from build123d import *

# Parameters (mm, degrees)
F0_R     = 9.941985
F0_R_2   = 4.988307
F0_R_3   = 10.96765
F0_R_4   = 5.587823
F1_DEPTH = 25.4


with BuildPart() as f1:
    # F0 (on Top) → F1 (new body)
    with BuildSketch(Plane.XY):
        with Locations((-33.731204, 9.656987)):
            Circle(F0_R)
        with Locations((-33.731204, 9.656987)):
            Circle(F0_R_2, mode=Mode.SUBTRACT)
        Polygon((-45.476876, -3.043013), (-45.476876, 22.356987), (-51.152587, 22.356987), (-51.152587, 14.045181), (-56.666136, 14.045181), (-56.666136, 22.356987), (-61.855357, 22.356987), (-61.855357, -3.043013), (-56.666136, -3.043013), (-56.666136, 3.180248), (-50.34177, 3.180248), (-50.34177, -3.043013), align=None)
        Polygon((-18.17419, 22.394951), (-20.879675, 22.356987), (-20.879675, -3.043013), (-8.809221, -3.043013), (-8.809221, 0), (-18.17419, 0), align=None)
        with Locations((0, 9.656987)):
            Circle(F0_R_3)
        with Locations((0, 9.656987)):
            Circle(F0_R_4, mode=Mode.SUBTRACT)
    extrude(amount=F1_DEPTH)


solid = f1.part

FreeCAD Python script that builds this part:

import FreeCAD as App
import Part
import Sketcher

V = App.Vector
Q = App.Units.Quantity


def add_polygon(sketch, points):
    """Adds a closed chain of lines whose ends are joined by coincident constraints."""
    first, n = sketch.GeometryCount, len(points)
    for a, b in zip(points, points[1:] + points[:1]):
        sketch.addGeometry(Part.LineSegment(App.Vector(*a, 0), App.Vector(*b, 0)), False)
    for i in range(n):
        sketch.addConstraint(Sketcher.Constraint("Coincident", first + i, 2, first + (i + 1) % n, 1))

doc = App.newDocument("Part")
body = doc.addObject("PartDesign::Body", "Body")
body.AllowCompound = True

# Sketch on XY plane
sketch1 = body.newObject("Sketcher::SketchObject", "Sketch")
sketch1.AttachmentSupport = (doc.getObject("XY_Plane"), [""])
sketch1.MapMode = "FlatFace"
sketch1.addGeometry(Part.Circle(V(-33.7, 9.7, 0), V(0, 0, 1), 9.9), False)  # 0
sketch1.addGeometry(Part.Circle(V(-33.7, 9.7, 0), V(0, 0, 1), 5), False)  # 1
add_polygon(sketch1, [(-45.5, -3), (-45.5, 22.4), (-51.2, 22.4), (-51.2, 14), (-56.7, 14), (-56.7, 22.4), (-61.9, 22.4), (-61.9, -3), (-56.7, -3), (-56.7, 3.2), (-50.3, 3.2), (-50.3, -3)])  # lines 2-13
add_polygon(sketch1, [(-18.2, 22.4), (-20.9, 22.4), (-20.9, -3), (-8.8, -3), (-8.8, 0), (-18.2, 0)])  # lines 14-19
sketch1.addGeometry(Part.Circle(V(0, 9.7, 0), V(0, 0, 1), 11), False)  # 20
sketch1.addGeometry(Part.Circle(V(0, 9.7, 0), V(0, 0, 1), 5.6), False)  # 21
sketch1.addConstraint([
    Sketcher.Constraint("Vertical", 2),
    Sketcher.Constraint("Horizontal", 3),
    Sketcher.Constraint("Vertical", 4),
    Sketcher.Constraint("Horizontal", 5),
    Sketcher.Constraint("Vertical", 6),
    Sketcher.Constraint("Horizontal", 7),
    Sketcher.Constraint("Vertical", 8),
    Sketcher.Constraint("Horizontal", 9),
    Sketcher.Constraint("Vertical", 10),
    Sketcher.Constraint("Horizontal", 11),
    Sketcher.Constraint("Vertical", 12),
    Sketcher.Constraint("Horizontal", 13),
    Sketcher.Constraint("Vertical", 15),
    Sketcher.Constraint("Horizontal", 16),
    Sketcher.Constraint("Vertical", 17),
    Sketcher.Constraint("Horizontal", 18),
    Sketcher.Constraint("Vertical", 19),
    Sketcher.Constraint("Coincident", 1, 3, 0, 3),
    Sketcher.Constraint("Coincident", 21, 3, 20, 3),
    Sketcher.Constraint("PointOnObject", 20, 3, -2),
    Sketcher.Constraint("PointOnObject", 17, 2, -1),
    Sketcher.Constraint("Horizontal", 1, 3, 20, 3),
    Sketcher.Constraint("Horizontal", 3, 2, 6, 2),
    Sketcher.Constraint("Horizontal", 9, 2, 12, 2),
    Sketcher.Constraint("Horizontal", 7, 2, 14, 2),
    Sketcher.Constraint("Horizontal", 13, 2, 15, 2),
    Sketcher.Constraint("Vertical", 6, 2, 9, 2),
    Sketcher.Constraint("DistanceY", 2, 1, 2, 2, Q("1 in")),
    Sketcher.Constraint("DistanceY", 0, 3, 2, 2, Q("0.5 in")),
    Sketcher.Constraint("Diameter", 20, Q("21.9353 mm")),
    Sketcher.Constraint("Diameter", 0, Q("19.88397 mm")),
    Sketcher.Constraint("DistanceX", 7, 2, 7, 1, Q("0.2043 in")),
    Sketcher.Constraint("DistanceX", 0, 3, -1, 1, Q("1.3280002 in")),
    Sketcher.Constraint("Diameter", 1, Q("9.976614 mm")),
    Sketcher.Constraint("Diameter", 21, Q("11.175646 mm")),
    Sketcher.Constraint("DistanceX", 3, 2, 3, 1, Q("5.675711 mm")),
    Sketcher.Constraint("DistanceX", 5, 2, 5, 1, Q("5.513549 mm")),
    Sketcher.Constraint("DistanceX", 18, 2, 18, 1, Q("9.364969 mm")),
    Sketcher.Constraint("DistanceY", 10, 1, 10, 2, Q("6.223261 mm")),
    Sketcher.Constraint("DistanceY", 19, 1, 19, 2, Q("22.394951 mm")),
    Sketcher.Constraint("DistanceX", 2, 2, 14, 2, Q("24.597201 mm")),
    Sketcher.Constraint("Distance", 14, Q("2.705751 mm")),
    Sketcher.Constraint("DistanceX", 11, 1, 11, 2, Q("6.324366 mm")),
    Sketcher.Constraint("DistanceY", 4, 2, 4, 1, Q("8.311806 mm")),
    Sketcher.Constraint("DistanceY", 17, 1, 17, 2, Q("3.043013 mm")),
    Sketcher.Constraint("DistanceX", 11, 2, -1, 1, Q("50.34177 mm")),
])
pad1 = body.newObject("PartDesign::Pad", "Pad")
pad1.Profile = sketch1
pad1.Length = Q("1 in")

doc.recompute()
